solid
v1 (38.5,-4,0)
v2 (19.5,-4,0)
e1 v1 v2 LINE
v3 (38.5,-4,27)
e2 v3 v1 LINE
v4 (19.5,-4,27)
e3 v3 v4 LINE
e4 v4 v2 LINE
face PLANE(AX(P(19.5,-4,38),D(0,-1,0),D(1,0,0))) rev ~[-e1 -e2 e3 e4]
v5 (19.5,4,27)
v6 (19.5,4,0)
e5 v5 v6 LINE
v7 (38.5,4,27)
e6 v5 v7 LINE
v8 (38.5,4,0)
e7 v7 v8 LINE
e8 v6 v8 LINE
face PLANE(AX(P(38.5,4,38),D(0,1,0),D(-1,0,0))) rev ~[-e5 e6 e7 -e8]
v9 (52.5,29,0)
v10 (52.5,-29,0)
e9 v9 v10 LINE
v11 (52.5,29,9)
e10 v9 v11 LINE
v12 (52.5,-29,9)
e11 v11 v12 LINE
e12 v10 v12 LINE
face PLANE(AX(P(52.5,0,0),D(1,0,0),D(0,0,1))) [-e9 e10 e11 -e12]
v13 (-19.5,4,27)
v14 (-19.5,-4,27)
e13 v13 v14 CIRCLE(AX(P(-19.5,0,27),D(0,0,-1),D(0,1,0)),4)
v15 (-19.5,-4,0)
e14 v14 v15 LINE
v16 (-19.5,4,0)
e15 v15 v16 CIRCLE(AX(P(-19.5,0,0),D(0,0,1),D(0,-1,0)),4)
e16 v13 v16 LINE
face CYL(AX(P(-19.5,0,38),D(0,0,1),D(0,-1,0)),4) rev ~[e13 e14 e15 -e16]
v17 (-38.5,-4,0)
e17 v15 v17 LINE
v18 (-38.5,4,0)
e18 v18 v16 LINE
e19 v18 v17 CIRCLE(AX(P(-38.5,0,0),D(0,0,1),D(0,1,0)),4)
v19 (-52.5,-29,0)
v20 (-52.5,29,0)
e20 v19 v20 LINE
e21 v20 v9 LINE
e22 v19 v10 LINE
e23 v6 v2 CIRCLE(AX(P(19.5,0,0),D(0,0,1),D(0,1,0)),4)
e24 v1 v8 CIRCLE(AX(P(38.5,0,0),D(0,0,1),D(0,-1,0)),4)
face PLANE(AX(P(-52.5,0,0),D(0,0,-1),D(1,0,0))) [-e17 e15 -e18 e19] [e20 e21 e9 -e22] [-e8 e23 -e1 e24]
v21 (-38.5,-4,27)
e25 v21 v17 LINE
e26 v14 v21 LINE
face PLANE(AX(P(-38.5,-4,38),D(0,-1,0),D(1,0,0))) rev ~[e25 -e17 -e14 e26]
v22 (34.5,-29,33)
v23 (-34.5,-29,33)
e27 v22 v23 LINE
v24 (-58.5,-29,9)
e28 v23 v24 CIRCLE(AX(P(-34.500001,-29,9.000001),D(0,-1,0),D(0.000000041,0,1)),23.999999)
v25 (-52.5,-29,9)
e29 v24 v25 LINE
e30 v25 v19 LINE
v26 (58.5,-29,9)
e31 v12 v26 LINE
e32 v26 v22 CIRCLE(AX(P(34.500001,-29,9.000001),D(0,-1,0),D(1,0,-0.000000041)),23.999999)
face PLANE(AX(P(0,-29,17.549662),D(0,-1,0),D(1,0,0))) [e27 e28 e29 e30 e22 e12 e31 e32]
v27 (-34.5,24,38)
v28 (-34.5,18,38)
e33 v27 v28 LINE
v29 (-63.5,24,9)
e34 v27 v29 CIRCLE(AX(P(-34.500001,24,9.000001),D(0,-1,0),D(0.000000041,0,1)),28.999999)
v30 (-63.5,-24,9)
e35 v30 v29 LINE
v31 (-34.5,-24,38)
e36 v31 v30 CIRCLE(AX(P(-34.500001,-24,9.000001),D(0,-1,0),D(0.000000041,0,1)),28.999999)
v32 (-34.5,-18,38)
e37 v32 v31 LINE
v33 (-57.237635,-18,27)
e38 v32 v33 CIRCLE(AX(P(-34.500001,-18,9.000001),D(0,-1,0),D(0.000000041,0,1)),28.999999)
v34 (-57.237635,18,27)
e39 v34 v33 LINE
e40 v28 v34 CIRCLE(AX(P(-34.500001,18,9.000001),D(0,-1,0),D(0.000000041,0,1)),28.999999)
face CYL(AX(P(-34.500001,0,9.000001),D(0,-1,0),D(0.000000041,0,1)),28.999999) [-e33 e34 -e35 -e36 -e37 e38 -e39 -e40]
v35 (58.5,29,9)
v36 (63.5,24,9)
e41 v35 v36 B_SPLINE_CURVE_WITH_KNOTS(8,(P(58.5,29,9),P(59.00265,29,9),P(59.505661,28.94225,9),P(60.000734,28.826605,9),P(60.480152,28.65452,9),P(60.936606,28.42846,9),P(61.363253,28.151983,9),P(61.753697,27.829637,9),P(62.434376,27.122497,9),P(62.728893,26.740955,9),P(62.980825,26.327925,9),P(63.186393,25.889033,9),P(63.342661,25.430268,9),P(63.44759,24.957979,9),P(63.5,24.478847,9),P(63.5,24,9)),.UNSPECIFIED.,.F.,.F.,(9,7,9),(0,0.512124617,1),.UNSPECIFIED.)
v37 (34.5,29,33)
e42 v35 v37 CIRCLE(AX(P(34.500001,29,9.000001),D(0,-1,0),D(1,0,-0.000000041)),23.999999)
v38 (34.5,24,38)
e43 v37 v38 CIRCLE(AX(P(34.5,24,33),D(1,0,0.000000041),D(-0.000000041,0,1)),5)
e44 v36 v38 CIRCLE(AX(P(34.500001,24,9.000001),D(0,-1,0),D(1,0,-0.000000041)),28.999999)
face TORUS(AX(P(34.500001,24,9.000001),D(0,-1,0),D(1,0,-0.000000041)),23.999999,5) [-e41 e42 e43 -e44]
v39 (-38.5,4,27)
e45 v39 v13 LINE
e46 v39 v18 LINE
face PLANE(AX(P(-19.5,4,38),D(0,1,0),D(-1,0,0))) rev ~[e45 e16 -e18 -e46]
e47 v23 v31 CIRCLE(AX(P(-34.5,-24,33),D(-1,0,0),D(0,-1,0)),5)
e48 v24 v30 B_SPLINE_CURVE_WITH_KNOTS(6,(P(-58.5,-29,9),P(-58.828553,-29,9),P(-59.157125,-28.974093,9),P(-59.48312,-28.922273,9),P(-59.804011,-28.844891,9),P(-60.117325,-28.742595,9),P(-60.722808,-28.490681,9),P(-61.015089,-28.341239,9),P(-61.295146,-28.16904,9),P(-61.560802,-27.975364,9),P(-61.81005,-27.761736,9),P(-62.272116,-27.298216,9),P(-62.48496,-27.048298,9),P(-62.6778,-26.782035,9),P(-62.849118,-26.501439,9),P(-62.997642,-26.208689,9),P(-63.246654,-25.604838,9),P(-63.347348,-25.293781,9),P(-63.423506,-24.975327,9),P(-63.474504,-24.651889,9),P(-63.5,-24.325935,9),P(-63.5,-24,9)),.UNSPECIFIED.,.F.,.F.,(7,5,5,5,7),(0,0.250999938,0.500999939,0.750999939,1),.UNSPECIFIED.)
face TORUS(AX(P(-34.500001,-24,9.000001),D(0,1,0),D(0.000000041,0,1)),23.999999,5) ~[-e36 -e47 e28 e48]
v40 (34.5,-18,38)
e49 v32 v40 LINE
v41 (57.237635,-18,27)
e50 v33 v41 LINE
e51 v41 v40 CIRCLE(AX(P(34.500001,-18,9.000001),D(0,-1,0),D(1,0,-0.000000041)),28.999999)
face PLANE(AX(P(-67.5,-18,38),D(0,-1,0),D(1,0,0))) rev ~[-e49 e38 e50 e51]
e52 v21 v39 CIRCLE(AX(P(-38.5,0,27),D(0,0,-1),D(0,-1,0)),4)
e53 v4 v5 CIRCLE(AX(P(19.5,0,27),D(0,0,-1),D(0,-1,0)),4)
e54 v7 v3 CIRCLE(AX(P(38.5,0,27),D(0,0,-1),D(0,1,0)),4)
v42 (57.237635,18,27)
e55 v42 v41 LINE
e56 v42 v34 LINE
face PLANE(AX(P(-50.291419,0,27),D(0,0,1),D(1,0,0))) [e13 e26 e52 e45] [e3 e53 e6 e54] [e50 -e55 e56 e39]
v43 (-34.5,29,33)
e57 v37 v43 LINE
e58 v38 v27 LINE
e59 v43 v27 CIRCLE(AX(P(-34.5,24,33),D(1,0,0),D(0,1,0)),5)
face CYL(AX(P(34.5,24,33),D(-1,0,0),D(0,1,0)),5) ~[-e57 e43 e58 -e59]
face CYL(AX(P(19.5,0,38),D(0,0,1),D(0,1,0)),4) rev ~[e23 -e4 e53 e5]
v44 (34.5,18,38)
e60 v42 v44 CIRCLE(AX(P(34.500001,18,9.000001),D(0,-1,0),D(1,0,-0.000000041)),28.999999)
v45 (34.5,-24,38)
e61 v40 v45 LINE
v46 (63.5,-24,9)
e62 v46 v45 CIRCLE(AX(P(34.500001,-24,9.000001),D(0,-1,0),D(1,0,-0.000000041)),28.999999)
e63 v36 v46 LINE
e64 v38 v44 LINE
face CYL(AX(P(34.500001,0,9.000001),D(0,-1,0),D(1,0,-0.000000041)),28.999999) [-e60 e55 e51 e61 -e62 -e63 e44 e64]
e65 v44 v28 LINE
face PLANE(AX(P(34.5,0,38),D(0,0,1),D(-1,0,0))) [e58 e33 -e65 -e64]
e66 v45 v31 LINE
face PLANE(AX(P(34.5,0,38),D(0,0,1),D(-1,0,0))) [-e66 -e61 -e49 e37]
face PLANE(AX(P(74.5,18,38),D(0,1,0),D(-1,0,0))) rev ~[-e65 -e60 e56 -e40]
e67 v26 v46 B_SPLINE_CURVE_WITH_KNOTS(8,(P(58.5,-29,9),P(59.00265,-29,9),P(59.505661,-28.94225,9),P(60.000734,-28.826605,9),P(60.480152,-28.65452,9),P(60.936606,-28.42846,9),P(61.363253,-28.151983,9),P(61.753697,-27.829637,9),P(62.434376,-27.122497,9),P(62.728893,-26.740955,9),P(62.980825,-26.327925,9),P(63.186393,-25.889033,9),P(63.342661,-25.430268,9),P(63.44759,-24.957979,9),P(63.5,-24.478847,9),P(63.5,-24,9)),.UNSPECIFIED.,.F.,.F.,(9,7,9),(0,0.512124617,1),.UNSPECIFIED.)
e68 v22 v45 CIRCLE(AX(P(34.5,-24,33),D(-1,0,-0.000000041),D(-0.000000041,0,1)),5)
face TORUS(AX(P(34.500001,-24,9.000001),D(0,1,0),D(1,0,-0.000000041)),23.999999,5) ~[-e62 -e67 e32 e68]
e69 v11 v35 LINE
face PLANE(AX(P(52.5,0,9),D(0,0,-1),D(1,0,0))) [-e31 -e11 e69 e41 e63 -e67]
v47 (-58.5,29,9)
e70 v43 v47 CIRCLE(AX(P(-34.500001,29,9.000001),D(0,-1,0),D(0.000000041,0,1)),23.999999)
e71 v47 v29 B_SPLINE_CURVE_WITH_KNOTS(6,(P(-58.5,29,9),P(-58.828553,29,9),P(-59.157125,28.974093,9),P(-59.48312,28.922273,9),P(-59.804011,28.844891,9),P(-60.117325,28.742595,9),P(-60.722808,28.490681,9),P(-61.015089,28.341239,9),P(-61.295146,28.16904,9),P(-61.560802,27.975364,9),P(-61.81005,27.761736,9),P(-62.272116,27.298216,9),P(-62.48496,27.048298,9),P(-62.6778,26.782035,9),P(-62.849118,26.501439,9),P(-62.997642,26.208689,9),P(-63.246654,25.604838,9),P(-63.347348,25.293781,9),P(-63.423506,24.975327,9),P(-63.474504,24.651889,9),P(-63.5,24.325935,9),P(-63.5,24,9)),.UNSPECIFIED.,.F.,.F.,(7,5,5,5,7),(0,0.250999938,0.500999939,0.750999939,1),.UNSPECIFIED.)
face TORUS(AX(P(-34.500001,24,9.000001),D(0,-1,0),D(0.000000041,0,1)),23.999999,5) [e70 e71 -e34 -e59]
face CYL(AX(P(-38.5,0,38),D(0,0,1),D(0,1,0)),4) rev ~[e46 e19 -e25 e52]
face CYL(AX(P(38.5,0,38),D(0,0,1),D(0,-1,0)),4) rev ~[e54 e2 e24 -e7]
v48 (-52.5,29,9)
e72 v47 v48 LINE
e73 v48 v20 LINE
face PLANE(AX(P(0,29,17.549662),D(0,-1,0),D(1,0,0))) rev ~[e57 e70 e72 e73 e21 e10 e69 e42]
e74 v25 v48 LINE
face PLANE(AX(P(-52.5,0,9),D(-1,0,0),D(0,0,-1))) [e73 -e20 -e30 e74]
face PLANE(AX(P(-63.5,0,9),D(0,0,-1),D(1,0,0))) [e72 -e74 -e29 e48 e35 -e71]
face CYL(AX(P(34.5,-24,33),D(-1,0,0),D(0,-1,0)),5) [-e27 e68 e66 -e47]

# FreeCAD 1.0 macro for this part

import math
import FreeCAD as App
import Part
import Sketcher
Q = App.Units.Quantity


def edges_at(feature, points):
    """Names of the edges that pass closest to the given points."""
    edges = feature.Shape.Edges
    near = lambda p: min(range(len(edges)), key=lambda i: edges[i].distToShape(Part.Vertex(*p))[0])
    return sorted({f"Edge{near(p) + 1}" for p in points})

doc = App.newDocument("Part")
body = doc.addObject("PartDesign::Body", "Body")

# Sketch on XZ plane
sketch1 = doc.addObject("Sketcher::SketchObject", "Sketch")
body.addObject(sketch1)
sketch1.AttachmentSupport = (doc.XZ_Plane, [""])
sketch1.MapMode = "FlatFace"
sketch1.addGeometry(Part.LineSegment(App.Vector(-52, 0, 0), App.Vector(52, 0, 0)), False)
sketch1.addGeometry(Part.LineSegment(App.Vector(52, 0, 0), App.Vector(52, 9, 0)), False)
sketch1.addGeometry(Part.LineSegment(App.Vector(52, 9, 0), App.Vector(64, 9, 0)), False)
sketch1.addGeometry(Part.ArcOfCircle(Part.Circle(App.Vector(35, 9, 0), App.Vector(0, 0, 1), 29), math.radians(0), math.radians(90)), False)
sketch1.addGeometry(Part.LineSegment(App.Vector(34, 38, 0), App.Vector(-34, 38, 0)), False)
sketch1.addGeometry(Part.ArcOfCircle(Part.Circle(App.Vector(-35, 9, 0), App.Vector(0, 0, 1), 29), math.radians(90), math.radians(180)), False)
sketch1.addGeometry(Part.LineSegment(App.Vector(-64, 9, 0), App.Vector(-52, 9, 0)), False)
sketch1.addGeometry(Part.LineSegment(App.Vector(-52, 9, 0), App.Vector(-52, 0, 0)), False)
sketch1.addConstraint(Sketcher.Constraint("Coincident", 0, 2, 1, 1))
sketch1.addConstraint(Sketcher.Constraint("Coincident", 1, 2, 2, 1))
sketch1.addConstraint(Sketcher.Constraint("Coincident", 2, 2, 3, 1))
sketch1.addConstraint(Sketcher.Constraint("Tangent", 3, 2, 4, 1))
sketch1.addConstraint(Sketcher.Constraint("Tangent", 4, 2, 5, 1))
sketch1.addConstraint(Sketcher.Constraint("Coincident", 5, 2, 6, 1))
sketch1.addConstraint(Sketcher.Constraint("Coincident", 6, 2, 7, 1))
sketch1.addConstraint(Sketcher.Constraint("Coincident", 7, 2, 0, 1))
sketch1.addConstraint(Sketcher.Constraint("Horizontal", 0))
sketch1.addConstraint(Sketcher.Constraint("Vertical", 1))
sketch1.addConstraint(Sketcher.Constraint("Horizontal", 2))
sketch1.addConstraint(Sketcher.Constraint("Horizontal", 4))
sketch1.addConstraint(Sketcher.Constraint("Horizontal", 6))
sketch1.addConstraint(Sketcher.Constraint("Vertical", 7))
sketch1.addConstraint(Sketcher.Constraint("Equal", 3, 5))
sketch1.addConstraint(Sketcher.Constraint("Symmetric", 0, 2, 7, 2, -1, 1))
sketch1.addConstraint(Sketcher.Constraint("Symmetric", 2, 2, 5, 2, -2))
sketch1.addConstraint(Sketcher.Constraint("Horizontal", 5, 3, 1, 2))
sketch1.addConstraint(Sketcher.Constraint("Radius", 3, Q("28.999999 mm")))
sketch1.addConstraint(Sketcher.Constraint("DistanceX", 0, 1, 0, 2, Q("105 mm")))
sketch1.addConstraint(Sketcher.Constraint("DistanceX", 2, 1, 2, 2, Q("11 mm")))
sketch1.addConstraint(Sketcher.Constraint("DistanceY", 1, 1, 1, 2, Q("9 mm")))
pad1 = doc.addObject("PartDesign::Pad", "Pad")
body.addObject(pad1)
pad1.Profile = sketch1
pad1.Length = 58
pad1.Midplane = True

# Sketch on XY plane
sketch2 = doc.addObject("Sketcher::SketchObject", "Sketch001")
body.addObject(sketch2)
sketch2.AttachmentSupport = (doc.XY_Plane, [""])
sketch2.MapMode = "FlatFace"
sketch2.AttachmentOffset = App.Placement(App.Vector(0, 0, 38), App.Rotation())
sketch2.addGeometry(Part.LineSegment(App.Vector(-19.5, 4, 0), App.Vector(-38.5, 4, 0)), False)
sketch2.addGeometry(Part.ArcOfCircle(Part.Circle(App.Vector(-38.5, 0, 0), App.Vector(0, 0, 1), 4), math.radians(90), math.radians(270)), False)
sketch2.addGeometry(Part.LineSegment(App.Vector(-38.5, -4, 0), App.Vector(-19.5, -4, 0)), False)
sketch2.addGeometry(Part.ArcOfCircle(Part.Circle(App.Vector(-19.5, 0, 0), App.Vector(0, 0, 1), 4), math.radians(-90), math.radians(90)), False)
sketch2.addGeometry(Part.ArcOfCircle(Part.Circle(App.Vector(19.5, 0, 0), App.Vector(0, 0, 1), 4), math.radians(90), math.radians(270)), False)
sketch2.addGeometry(Part.LineSegment(App.Vector(19.5, -4, 0), App.Vector(38.5, -4, 0)), False)
sketch2.addGeometry(Part.ArcOfCircle(Part.Circle(App.Vector(38.5, 0, 0), App.Vector(0, 0, 1), 4), math.radians(-90), math.radians(90)), False)
sketch2.addGeometry(Part.LineSegment(App.Vector(38.5, 4, 0), App.Vector(19.5, 4, 0)), False)
sketch2.addConstraint(Sketcher.Constraint("Tangent", 0, 2, 1, 1))
sketch2.addConstraint(Sketcher.Constraint("Tangent", 1, 2, 2, 1))
sketch2.addConstraint(Sketcher.Constraint("Tangent", 2, 2, 3, 1))
sketch2.addConstraint(Sketcher.Constraint("Tangent", 3, 2, 0, 1))
sketch2.addConstraint(Sketcher.Constraint("Tangent", 4, 2, 5, 1))
sketch2.addConstraint(Sketcher.Constraint("Tangent", 5, 2, 6, 1))
sketch2.addConstraint(Sketcher.Constraint("Tangent", 6, 2, 7, 1))
sketch2.addConstraint(Sketcher.Constraint("Tangent", 7, 2, 4, 1))
sketch2.addConstraint(Sketcher.Constraint("Horizontal", 0))
sketch2.addConstraint(Sketcher.Constraint("Horizontal", 2))
sketch2.addConstraint(Sketcher.Constraint("Horizontal", 5))
sketch2.addConstraint(Sketcher.Constraint("Horizontal", 7))
sketch2.addConstraint(Sketcher.Constraint("Equal", 3, 4))
sketch2.addConstraint(Sketcher.Constraint("Symmetric", 3, 3, 4, 3, -1, 1))
sketch2.addConstraint(Sketcher.Constraint("Symmetric", 1, 3, 6, 3, -2))
sketch2.addConstraint(Sketcher.Constraint("Radius", 1, Q("4 mm")))
sketch2.addConstraint(Sketcher.Constraint("DistanceX", 0, 2, 0, 1, Q("19 mm")))
sketch2.addConstraint(Sketcher.Constraint("DistanceX", 3, 3, 4, 3, Q("39 mm")))
pocket1 = doc.addObject("PartDesign::Pocket", "Pocket")
body.addObject(pocket1)
pocket1.Profile = sketch2
pocket1.Type = "ThroughAll"

# Sketch on XY plane
sketch3 = doc.addObject("Sketcher::SketchObject", "Sketch002")
body.addObject(sketch3)
sketch3.AttachmentSupport = (doc.XY_Plane, [""])
sketch3.MapMode = "FlatFace"
sketch3.AttachmentOffset = App.Placement(App.Vector(0, 0, 38), App.Rotation())
sketch3.addGeometry(Part.LineSegment(App.Vector(-67.5, 18, 0), App.Vector(-67.5, -18, 0)), False)
sketch3.addGeometry(Part.LineSegment(App.Vector(-67.5, -18, 0), App.Vector(74.5, -18, 0)), False)
sketch3.addGeometry(Part.LineSegment(App.Vector(74.5, -18, 0), App.Vector(74.5, 18, 0)), False)
sketch3.addGeometry(Part.LineSegment(App.Vector(74.5, 18, 0), App.Vector(-67.5, 18, 0)), False)
sketch3.addGeometry(Part.ArcOfCircle(Part.Circle(App.Vector(19.5, 0, 0), App.Vector(0, 0, 1), 4), math.radians(90), math.radians(270)), False)
sketch3.addGeometry(Part.LineSegment(App.Vector(19.5, 4, 0), App.Vector(38.5, 4, 0)), False)
sketch3.addGeometry(Part.ArcOfCircle(Part.Circle(App.Vector(38.5, 0, 0), App.Vector(0, 0, 1), 4), math.radians(-90), math.radians(90)), False)
sketch3.addGeometry(Part.LineSegment(App.Vector(38.5, -4, 0), App.Vector(19.5, -4, 0)), False)
sketch3.addGeometry(Part.ArcOfCircle(Part.Circle(App.Vector(-38.5, 0, 0), App.Vector(0, 0, 1), 4), math.radians(90), math.radians(270)), False)
sketch3.addGeometry(Part.LineSegment(App.Vector(-38.5, 4, 0), App.Vector(-19.5, 4, 0)), False)
sketch3.addGeometry(Part.ArcOfCircle(Part.Circle(App.Vector(-19.5, 0, 0), App.Vector(0, 0, 1), 4), math.radians(-90), math.radians(90)), False)
sketch3.addGeometry(Part.LineSegment(App.Vector(-19.5, -4, 0), App.Vector(-38.5, -4, 0)), False)
sketch3.addConstraint(Sketcher.Constraint("Coincident", 0, 2, 1, 1))
sketch3.addConstraint(Sketcher.Constraint("Coincident", 1, 2, 2, 1))
sketch3.addConstraint(Sketcher.Constraint("Coincident", 2, 2, 3, 1))
sketch3.addConstraint(Sketcher.Constraint("Coincident", 3, 2, 0, 1))
sketch3.addConstraint(Sketcher.Constraint("Tangent", 4, 1, 5, 1))
sketch3.addConstraint(Sketcher.Constraint("Tangent", 5, 2, 6, 2))
sketch3.addConstraint(Sketcher.Constraint("Tangent", 6, 1, 7, 1))
sketch3.addConstraint(Sketcher.Constraint("Tangent", 7, 2, 4, 2))
sketch3.addConstraint(Sketcher.Constraint("Tangent", 8, 1, 9, 1))
sketch3.addConstraint(Sketcher.Constraint("Tangent", 9, 2, 10, 2))
sketch3.addConstraint(Sketcher.Constraint("Tangent", 10, 1, 11, 1))
sketch3.addConstraint(Sketcher.Constraint("Tangent", 11, 2, 8, 2))
sketch3.addConstraint(Sketcher.Constraint("Vertical", 0))
sketch3.addConstraint(Sketcher.Constraint("Horizontal", 1))
sketch3.addConstraint(Sketcher.Constraint("Vertical", 2))
sketch3.addConstraint(Sketcher.Constraint("Horizontal", 3))
sketch3.addConstraint(Sketcher.Constraint("Horizontal", 5))
sketch3.addConstraint(Sketcher.Constraint("Horizontal", 7))
sketch3.addConstraint(Sketcher.Constraint("Horizontal", 9))
sketch3.addConstraint(Sketcher.Constraint("Horizontal", 11))
sketch3.addConstraint(Sketcher.Constraint("Equal", 6, 8))
sketch3.addConstraint(Sketcher.Constraint("Symmetric", 6, 3, 8, 3, -1, 1))
sketch3.addConstraint(Sketcher.Constraint("Symmetric", 4, 3, 10, 3, -2))
sketch3.addConstraint(Sketcher.Constraint("Radius", 4, Q("4 mm")))
sketch3.addConstraint(Sketcher.Constraint("DistanceX", 1, 1, 1, 2, Q("142 mm")))
sketch3.addConstraint(Sketcher.Constraint("DistanceX", 5, 1, 5, 2, Q("19 mm")))
sketch3.addConstraint(Sketcher.Constraint("DistanceY", 0, 2, 0, 1, Q("36 mm")))
sketch3.addConstraint(Sketcher.Constraint("DistanceY", 0, 2, -1, 1, Q("18 mm")))
sketch3.addConstraint(Sketcher.Constraint("DistanceX", 8, 3, 4, 3, Q("58 mm")))
sketch3.addConstraint(Sketcher.Constraint("DistanceX", 0, 2, 8, 3, Q("29 mm")))
pocket2 = doc.addObject("PartDesign::Pocket", "Pocket001")
body.addObject(pocket2)
pocket2.Profile = sketch3
pocket2.Length = 11
doc.recompute()

fillet = doc.addObject("PartDesign::Fillet", "Fillet")
body.addObject(fillet)
fillet.Base = (pocket2, edges_at(pocket2, [(0, -29, 38), (0, 29, 38)]))
fillet.Radius = 5

doc.recompute()
